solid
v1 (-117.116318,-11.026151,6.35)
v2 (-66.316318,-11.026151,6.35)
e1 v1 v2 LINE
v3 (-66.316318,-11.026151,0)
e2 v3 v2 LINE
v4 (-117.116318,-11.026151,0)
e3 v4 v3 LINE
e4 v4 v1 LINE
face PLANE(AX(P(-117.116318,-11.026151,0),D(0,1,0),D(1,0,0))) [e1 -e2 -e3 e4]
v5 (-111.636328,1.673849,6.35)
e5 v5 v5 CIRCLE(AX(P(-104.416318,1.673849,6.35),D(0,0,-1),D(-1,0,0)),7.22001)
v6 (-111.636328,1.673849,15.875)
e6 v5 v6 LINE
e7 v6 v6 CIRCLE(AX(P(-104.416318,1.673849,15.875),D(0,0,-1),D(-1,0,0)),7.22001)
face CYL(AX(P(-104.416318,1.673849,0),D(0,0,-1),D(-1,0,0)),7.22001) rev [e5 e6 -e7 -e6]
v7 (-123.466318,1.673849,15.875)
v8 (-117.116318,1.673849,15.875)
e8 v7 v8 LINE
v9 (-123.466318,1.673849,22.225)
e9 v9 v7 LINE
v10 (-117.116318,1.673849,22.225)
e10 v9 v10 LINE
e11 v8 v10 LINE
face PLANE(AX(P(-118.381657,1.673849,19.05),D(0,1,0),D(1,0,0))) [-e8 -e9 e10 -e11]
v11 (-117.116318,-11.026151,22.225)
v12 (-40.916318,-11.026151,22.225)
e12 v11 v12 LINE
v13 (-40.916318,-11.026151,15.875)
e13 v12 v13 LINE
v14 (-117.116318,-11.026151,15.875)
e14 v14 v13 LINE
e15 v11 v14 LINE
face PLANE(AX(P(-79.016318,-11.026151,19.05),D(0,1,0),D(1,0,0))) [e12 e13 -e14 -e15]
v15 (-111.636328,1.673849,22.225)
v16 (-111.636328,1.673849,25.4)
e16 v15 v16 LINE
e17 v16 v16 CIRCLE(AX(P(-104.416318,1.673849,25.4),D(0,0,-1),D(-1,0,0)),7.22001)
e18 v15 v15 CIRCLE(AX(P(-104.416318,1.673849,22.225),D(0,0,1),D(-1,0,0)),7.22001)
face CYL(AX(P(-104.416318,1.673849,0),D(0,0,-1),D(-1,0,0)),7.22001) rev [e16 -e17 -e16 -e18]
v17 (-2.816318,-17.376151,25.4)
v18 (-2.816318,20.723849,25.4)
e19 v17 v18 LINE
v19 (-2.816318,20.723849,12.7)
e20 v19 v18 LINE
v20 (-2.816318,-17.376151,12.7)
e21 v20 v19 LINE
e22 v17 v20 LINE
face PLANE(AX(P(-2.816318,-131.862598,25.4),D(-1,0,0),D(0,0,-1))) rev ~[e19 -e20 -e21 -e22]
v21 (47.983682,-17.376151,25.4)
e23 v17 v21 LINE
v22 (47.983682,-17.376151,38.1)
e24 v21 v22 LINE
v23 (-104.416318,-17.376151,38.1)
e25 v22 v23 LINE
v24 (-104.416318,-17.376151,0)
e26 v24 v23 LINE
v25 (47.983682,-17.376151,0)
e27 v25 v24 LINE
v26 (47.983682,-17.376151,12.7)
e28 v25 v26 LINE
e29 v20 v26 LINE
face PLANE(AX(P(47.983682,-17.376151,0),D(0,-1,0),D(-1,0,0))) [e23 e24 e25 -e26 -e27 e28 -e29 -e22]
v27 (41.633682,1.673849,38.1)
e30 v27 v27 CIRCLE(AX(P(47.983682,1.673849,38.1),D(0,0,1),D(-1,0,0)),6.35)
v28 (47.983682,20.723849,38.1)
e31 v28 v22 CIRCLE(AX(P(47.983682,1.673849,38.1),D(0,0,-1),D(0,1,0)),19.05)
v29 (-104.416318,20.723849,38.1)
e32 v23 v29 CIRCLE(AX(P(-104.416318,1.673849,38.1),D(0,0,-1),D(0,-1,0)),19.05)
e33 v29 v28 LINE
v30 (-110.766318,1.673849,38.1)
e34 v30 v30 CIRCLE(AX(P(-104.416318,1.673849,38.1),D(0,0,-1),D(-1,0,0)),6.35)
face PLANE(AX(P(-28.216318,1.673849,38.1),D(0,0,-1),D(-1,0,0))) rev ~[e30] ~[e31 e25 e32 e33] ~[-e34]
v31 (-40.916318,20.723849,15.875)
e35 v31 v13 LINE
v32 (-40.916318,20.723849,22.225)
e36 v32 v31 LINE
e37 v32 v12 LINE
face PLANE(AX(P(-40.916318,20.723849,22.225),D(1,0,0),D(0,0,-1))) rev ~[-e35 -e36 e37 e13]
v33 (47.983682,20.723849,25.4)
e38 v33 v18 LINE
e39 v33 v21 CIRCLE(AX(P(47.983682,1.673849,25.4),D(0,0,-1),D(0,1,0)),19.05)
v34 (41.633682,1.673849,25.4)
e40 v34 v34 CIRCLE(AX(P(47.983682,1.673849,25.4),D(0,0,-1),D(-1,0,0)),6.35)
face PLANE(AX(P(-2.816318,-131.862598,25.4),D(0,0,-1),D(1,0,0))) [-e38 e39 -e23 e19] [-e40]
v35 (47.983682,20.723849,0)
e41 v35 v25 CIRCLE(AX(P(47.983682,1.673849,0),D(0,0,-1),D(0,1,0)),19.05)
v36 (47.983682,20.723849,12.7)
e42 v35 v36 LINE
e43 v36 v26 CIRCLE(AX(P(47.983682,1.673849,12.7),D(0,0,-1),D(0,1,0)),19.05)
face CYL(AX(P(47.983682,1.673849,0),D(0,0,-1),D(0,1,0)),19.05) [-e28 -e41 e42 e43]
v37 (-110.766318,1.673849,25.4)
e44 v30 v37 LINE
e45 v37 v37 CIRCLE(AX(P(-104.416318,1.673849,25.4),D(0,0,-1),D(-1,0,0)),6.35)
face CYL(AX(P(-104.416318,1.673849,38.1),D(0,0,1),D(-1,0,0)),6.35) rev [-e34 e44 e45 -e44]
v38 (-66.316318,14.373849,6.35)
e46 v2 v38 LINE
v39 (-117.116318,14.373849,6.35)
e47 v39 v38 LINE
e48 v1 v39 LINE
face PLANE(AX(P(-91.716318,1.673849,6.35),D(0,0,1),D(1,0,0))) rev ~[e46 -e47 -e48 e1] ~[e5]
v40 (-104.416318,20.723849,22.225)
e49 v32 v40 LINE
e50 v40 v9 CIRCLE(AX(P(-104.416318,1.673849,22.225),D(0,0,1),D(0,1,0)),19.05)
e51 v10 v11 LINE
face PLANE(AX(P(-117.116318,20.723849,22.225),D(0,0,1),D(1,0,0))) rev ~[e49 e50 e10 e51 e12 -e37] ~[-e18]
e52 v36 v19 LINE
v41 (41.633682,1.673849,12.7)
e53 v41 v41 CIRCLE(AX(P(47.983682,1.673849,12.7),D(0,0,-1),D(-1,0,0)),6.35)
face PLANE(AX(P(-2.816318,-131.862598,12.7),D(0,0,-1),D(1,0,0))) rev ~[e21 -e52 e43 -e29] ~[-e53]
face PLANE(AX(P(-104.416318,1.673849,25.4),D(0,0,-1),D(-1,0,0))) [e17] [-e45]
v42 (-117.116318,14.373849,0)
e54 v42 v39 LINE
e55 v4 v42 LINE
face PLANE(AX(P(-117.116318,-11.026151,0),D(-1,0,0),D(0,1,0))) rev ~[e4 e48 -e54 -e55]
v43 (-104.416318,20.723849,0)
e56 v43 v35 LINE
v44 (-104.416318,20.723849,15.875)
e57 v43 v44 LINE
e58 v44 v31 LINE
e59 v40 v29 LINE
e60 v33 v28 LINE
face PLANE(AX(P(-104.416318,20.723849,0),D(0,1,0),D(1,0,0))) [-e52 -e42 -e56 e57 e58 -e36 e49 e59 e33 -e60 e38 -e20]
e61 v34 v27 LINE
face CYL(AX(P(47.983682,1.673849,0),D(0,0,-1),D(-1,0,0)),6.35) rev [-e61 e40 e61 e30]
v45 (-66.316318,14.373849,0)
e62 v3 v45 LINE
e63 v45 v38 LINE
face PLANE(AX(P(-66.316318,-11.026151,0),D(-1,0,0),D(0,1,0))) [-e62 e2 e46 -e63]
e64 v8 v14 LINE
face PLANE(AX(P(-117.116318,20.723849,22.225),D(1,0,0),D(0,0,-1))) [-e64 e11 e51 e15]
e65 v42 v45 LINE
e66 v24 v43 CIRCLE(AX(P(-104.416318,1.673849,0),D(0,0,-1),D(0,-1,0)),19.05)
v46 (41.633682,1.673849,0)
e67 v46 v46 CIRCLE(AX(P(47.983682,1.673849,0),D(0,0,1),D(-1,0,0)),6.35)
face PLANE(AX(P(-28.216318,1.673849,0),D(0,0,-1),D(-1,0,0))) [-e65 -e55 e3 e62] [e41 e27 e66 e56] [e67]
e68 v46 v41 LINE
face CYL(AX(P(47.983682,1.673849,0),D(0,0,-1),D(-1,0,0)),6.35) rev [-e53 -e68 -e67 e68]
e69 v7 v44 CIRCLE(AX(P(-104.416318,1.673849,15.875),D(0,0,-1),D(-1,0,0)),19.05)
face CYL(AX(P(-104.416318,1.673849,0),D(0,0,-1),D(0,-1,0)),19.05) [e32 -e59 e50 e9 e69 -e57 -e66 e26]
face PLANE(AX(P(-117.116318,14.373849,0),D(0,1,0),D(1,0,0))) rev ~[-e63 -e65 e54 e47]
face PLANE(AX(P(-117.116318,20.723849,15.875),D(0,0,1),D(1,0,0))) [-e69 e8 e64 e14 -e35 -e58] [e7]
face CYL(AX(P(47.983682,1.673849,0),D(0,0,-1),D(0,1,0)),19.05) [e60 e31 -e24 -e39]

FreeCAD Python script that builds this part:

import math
import FreeCAD as App
import Part
import Sketcher
from FreeCAD import Vector
Q = App.Units.Quantity

doc = App.newDocument("Part")
body = doc.addObject("PartDesign::Body", "Body")

sketch1 = body.newObject("Sketcher::SketchObject", "Sketch")
sketch1.AttachmentSupport = (doc.getObject("XY_Plane"), [""])
sketch1.MapMode = "FlatFace"
sketch1.addGeometry(Part.LineSegment(Vector(47.983682, 20.723849, 0), Vector(-104.416318, 20.723849, 0)), False)
sketch1.addGeometry(Part.ArcOfCircle(Part.Circle(Vector(-104.416318, 1.673849, 0), Vector(0, 0, 1), 19.05), math.radians(90), math.radians(270)), False)
sketch1.addGeometry(Part.LineSegment(Vector(-104.416318, -17.376151, 0), Vector(47.983682, -17.376151, 0)), False)
sketch1.addGeometry(Part.ArcOfCircle(Part.Circle(Vector(47.983682, 1.673849, 0), Vector(0, 0, 1), 19.05), math.radians(-90), math.radians(90)), False)
sketch1.addGeometry(Part.Circle(Vector(47.983682, 1.673849, 0), Vector(0, 0, 1), 6.35), False)
sketch1.addGeometry(Part.Circle(Vector(-104.416318, 1.673849, 0), Vector(0, 0, 1), 7.22001), False)
sketch1.addConstraint(Sketcher.Constraint("Tangent", 0, 2, 1, 1))
sketch1.addConstraint(Sketcher.Constraint("Tangent", 1, 2, 2, 1))
sketch1.addConstraint(Sketcher.Constraint("Tangent", 2, 2, 3, 1))
sketch1.addConstraint(Sketcher.Constraint("Tangent", 3, 2, 0, 1))
sketch1.addConstraint(Sketcher.Constraint("Horizontal", 0))
sketch1.addConstraint(Sketcher.Constraint("Horizontal", 2))
sketch1.addConstraint(Sketcher.Constraint("Coincident", 4, 3, 3, 3))
sketch1.addConstraint(Sketcher.Constraint("Coincident", 5, 3, 1, 3))
sketch1.addConstraint(Sketcher.Constraint("Diameter", 4, Q("0.5 in")))
sketch1.addConstraint(Sketcher.Constraint("DistanceX", 0, 2, 0, 1, Q("6 in")))
sketch1.addConstraint(Sketcher.Constraint("Radius", 1, Q("0.75 in")))
sketch1.addConstraint(Sketcher.Constraint("Diameter", 5, Q("14.44002 mm")))
sketch1.addConstraint(Sketcher.Constraint("DistanceY", -1, 1, 1, 3, Q("1.673849 mm")))
sketch1.addConstraint(Sketcher.Constraint("DistanceX", 1, 3, -1, 1, Q("104.416318 mm")))
pad1 = body.newObject("PartDesign::Pad", "Pad")
pad1.Profile = sketch1
pad1.Length = Q("1.5 in")

sketch2 = body.newObject("Sketcher::SketchObject", "Sketch001")
sketch2.AttachmentSupport = (doc.getObject("XY_Plane"), [""])
sketch2.MapMode = "FlatFace"
sketch2.addGeometry(Part.LineSegment(Vector(-117.116318, 14.373849, 0), Vector(-117.116318, -11.026151, 0)), False)
sketch2.addGeometry(Part.LineSegment(Vector(-117.116318, -11.026151, 0), Vector(-66.316318, -11.026151, 0)), False)
sketch2.addGeometry(Part.LineSegment(Vector(-66.316318, -11.026151, 0), Vector(-66.316318, 14.373849, 0)), False)
sketch2.addGeometry(Part.LineSegment(Vector(-66.316318, 14.373849, 0), Vector(-117.116318, 14.373849, 0)), False)
sketch2.addConstraint(Sketcher.Constraint("Coincident", 0, 2, 1, 1))
sketch2.addConstraint(Sketcher.Constraint("Coincident", 1, 2, 2, 1))
sketch2.addConstraint(Sketcher.Constraint("Coincident", 2, 2, 3, 1))
sketch2.addConstraint(Sketcher.Constraint("Coincident", 3, 2, 0, 1))
sketch2.addConstraint(Sketcher.Constraint("Vertical", 0))
sketch2.addConstraint(Sketcher.Constraint("Horizontal", 1))
sketch2.addConstraint(Sketcher.Constraint("Vertical", 2))
sketch2.addConstraint(Sketcher.Constraint("Horizontal", 3))
sketch2.addConstraint(Sketcher.Constraint("DistanceX", 1, 1, 1, 2, Q("2 in")))
sketch2.addConstraint(Sketcher.Constraint("DistanceY", 0, 2, 0, 1, Q("1 in")))
sketch2.addConstraint(Sketcher.Constraint("DistanceY", 0, 2, -1, 1, Q("11.026151 mm")))
sketch2.addConstraint(Sketcher.Constraint("DistanceX", 0, 2, -1, 1, Q("117.116318 mm")))
pocket1 = body.newObject("PartDesign::Pocket", "Pocket")
pocket1.Profile = sketch2
pocket1.Length = Q("0.25 in")
pocket1.Reversed = True

sketch3 = body.newObject("Sketcher::SketchObject", "Sketch002")
sketch3.AttachmentSupport = (doc.getObject("XZ_Plane"), [""])
sketch3.MapMode = "FlatFace"
sketch3.addGeometry(Part.LineSegment(Vector(-2.816318, 12.7, 0), Vector(-2.816318, 25.4, 0)), False)
sketch3.addGeometry(Part.LineSegment(Vector(-2.816318, 25.4, 0), Vector(73.383682, 25.4, 0)), False)
sketch3.addGeometry(Part.LineSegment(Vector(73.383682, 25.4, 0), Vector(73.383682, 12.7, 0)), False)
sketch3.addGeometry(Part.LineSegment(Vector(73.383682, 12.7, 0), Vector(-2.816318, 12.7, 0)), False)
sketch3.addConstraint(Sketcher.Constraint("Coincident", 0, 2, 1, 1))
sketch3.addConstraint(Sketcher.Constraint("Coincident", 1, 2, 2, 1))
sketch3.addConstraint(Sketcher.Constraint("Coincident", 2, 2, 3, 1))
sketch3.addConstraint(Sketcher.Constraint("Coincident", 3, 2, 0, 1))
sketch3.addConstraint(Sketcher.Constraint("Vertical", 0))
sketch3.addConstraint(Sketcher.Constraint("Horizontal", 1))
sketch3.addConstraint(Sketcher.Constraint("Vertical", 2))
sketch3.addConstraint(Sketcher.Constraint("Horizontal", 3))
sketch3.addConstraint(Sketcher.Constraint("DistanceX", 1, 1, 1, 2, Q("3 in")))
sketch3.addConstraint(Sketcher.Constraint("DistanceY", 0, 1, 0, 2, Q("0.5 in")))
sketch3.addConstraint(Sketcher.Constraint("DistanceY", -1, 1, 0, 2, Q("1 in")))
sketch3.addConstraint(Sketcher.Constraint("DistanceX", 0, 2, -1, 1, Q("2.816318 mm")))
pocket2 = body.newObject("PartDesign::Pocket", "Pocket001")
pocket2.Profile = sketch3
pocket2.Type = "ThroughAll"
pocket2.Midplane = True

sketch4 = body.newObject("Sketcher::SketchObject", "Sketch003")
sketch4.AttachmentSupport = (doc.getObject("XZ_Plane"), [""])
sketch4.MapMode = "FlatFace"
sketch4.AttachmentOffset = App.Placement(Vector(0, 0, -20.723849), App.Rotation())
sketch4.addGeometry(Part.LineSegment(Vector(-117.116318, 15.875, 0), Vector(-117.116318, 22.225, 0)), False)
sketch4.addGeometry(Part.LineSegment(Vector(-117.116318, 22.225, 0), Vector(-40.916318, 22.225, 0)), False)
sketch4.addGeometry(Part.LineSegment(Vector(-40.916318, 22.225, 0), Vector(-40.916318, 15.875, 0)), False)
sketch4.addGeometry(Part.LineSegment(Vector(-40.916318, 15.875, 0), Vector(-117.116318, 15.875, 0)), False)
sketch4.addConstraint(Sketcher.Constraint("Coincident", 0, 2, 1, 1))
sketch4.addConstraint(Sketcher.Constraint("Coincident", 1, 2, 2, 1))
sketch4.addConstraint(Sketcher.Constraint("Coincident", 2, 2, 3, 1))
sketch4.addConstraint(Sketcher.Constraint("Coincident", 3, 2, 0, 1))
sketch4.addConstraint(Sketcher.Constraint("Vertical", 0))
sketch4.addConstraint(Sketcher.Constraint("Horizontal", 1))
sketch4.addConstraint(Sketcher.Constraint("Vertical", 2))
sketch4.addConstraint(Sketcher.Constraint("Horizontal", 3))
sketch4.addConstraint(Sketcher.Constraint("DistanceX", 1, 1, 1, 2, Q("3 in")))
sketch4.addConstraint(Sketcher.Constraint("DistanceY", 0, 1, 0, 2, Q("0.25 in")))
sketch4.addConstraint(Sketcher.Constraint("DistanceY", -1, 1, 0, 2, Q("0.875 in")))
sketch4.addConstraint(Sketcher.Constraint("DistanceX", 0, 2, -1, 1, Q("117.116318 mm")))
pocket3 = body.newObject("PartDesign::Pocket", "Pocket002")
pocket3.Profile = sketch4
pocket3.Length = Q("1.25 in")
pocket3.Reversed = True

sketch5 = body.newObject("Sketcher::SketchObject", "Sketch004")
sketch5.AttachmentSupport = (doc.getObject("XY_Plane"), [""])
sketch5.MapMode = "FlatFace"
sketch5.AttachmentOffset = App.Placement(Vector(0, 0, 1.5 * 25.4), App.Rotation())
sketch5.addGeometry(Part.Circle(Vector(-104.416318, 1.673849, 0), Vector(0, 0, 1), 7.62), False)
sketch5.addGeometry(Part.Circle(Vector(-104.416318, 1.673849, 0), Vector(0, 0, 1), 6.35), False)
sketch5.addConstraint(Sketcher.Constraint("Coincident", 1, 3, 0, 3))
sketch5.addConstraint(Sketcher.Constraint("Diameter", 0, Q("0.6 in")))
sketch5.addConstraint(Sketcher.Constraint("Diameter", 1, Q("0.5 in")))
sketch5.addConstraint(Sketcher.Constraint("DistanceY", -1, 1, 0, 3, Q("1.673849 mm")))
sketch5.addConstraint(Sketcher.Constraint("DistanceX", 0, 3, -1, 1, Q("104.416318 mm")))
pad2 = body.newObject("PartDesign::Pad", "Pad001")
pad2.Profile = sketch5
pad2.Length = Q("0.5 in")
pad2.Reversed = True

sketch6 = body.newObject("Sketcher::SketchObject", "Sketch005")
sketch6.AttachmentSupport = (doc.getObject("XZ_Plane"), [""])
sketch6.MapMode = "FlatFace"
sketch6.AttachmentOffset = App.Placement(Vector(0, 0, -20.723849), App.Rotation())
sketch6.addGeometry(Part.LineSegment(Vector(-134.731503, 15.875, 0), Vector(-134.731503, 22.225, 0)), False)
sketch6.addGeometry(Part.LineSegment(Vector(-134.731503, 22.225, 0), Vector(-102.031811, 22.225, 0)), False)
sketch6.addGeometry(Part.LineSegment(Vector(-102.031811, 22.225, 0), Vector(-102.031811, 15.875, 0)), False)
sketch6.addGeometry(Part.LineSegment(Vector(-102.031811, 15.875, 0), Vector(-134.731503, 15.875, 0)), False)
sketch6.addConstraint(Sketcher.Constraint("Coincident", 0, 2, 1, 1))
sketch6.addConstraint(Sketcher.Constraint("Coincident", 1, 2, 2, 1))
sketch6.addConstraint(Sketcher.Constraint("Coincident", 2, 2, 3, 1))
sketch6.addConstraint(Sketcher.Constraint("Coincident", 3, 2, 0, 1))
sketch6.addConstraint(Sketcher.Constraint("Vertical", 0))
sketch6.addConstraint(Sketcher.Constraint("Horizontal", 1))
sketch6.addConstraint(Sketcher.Constraint("Vertical", 2))
sketch6.addConstraint(Sketcher.Constraint("Horizontal", 3))
sketch6.addConstraint(Sketcher.Constraint("DistanceY", 0, 1, 0, 2, Q("0.25 in")))
sketch6.addConstraint(Sketcher.Constraint("DistanceY", -1, 1, 0, 2, Q("0.875 in")))
sketch6.addConstraint(Sketcher.Constraint("DistanceX", 1, 1, 1, 2, Q("32.699692 mm")))
sketch6.addConstraint(Sketcher.Constraint("DistanceX", 1, 2, -1, 1, Q("102.031811 mm")))
pocket4 = body.newObject("PartDesign::Pocket", "Pocket003")
pocket4.Profile = sketch6
pocket4.Length = Q("0.75 in")
pocket4.Reversed = True

doc.recompute()
